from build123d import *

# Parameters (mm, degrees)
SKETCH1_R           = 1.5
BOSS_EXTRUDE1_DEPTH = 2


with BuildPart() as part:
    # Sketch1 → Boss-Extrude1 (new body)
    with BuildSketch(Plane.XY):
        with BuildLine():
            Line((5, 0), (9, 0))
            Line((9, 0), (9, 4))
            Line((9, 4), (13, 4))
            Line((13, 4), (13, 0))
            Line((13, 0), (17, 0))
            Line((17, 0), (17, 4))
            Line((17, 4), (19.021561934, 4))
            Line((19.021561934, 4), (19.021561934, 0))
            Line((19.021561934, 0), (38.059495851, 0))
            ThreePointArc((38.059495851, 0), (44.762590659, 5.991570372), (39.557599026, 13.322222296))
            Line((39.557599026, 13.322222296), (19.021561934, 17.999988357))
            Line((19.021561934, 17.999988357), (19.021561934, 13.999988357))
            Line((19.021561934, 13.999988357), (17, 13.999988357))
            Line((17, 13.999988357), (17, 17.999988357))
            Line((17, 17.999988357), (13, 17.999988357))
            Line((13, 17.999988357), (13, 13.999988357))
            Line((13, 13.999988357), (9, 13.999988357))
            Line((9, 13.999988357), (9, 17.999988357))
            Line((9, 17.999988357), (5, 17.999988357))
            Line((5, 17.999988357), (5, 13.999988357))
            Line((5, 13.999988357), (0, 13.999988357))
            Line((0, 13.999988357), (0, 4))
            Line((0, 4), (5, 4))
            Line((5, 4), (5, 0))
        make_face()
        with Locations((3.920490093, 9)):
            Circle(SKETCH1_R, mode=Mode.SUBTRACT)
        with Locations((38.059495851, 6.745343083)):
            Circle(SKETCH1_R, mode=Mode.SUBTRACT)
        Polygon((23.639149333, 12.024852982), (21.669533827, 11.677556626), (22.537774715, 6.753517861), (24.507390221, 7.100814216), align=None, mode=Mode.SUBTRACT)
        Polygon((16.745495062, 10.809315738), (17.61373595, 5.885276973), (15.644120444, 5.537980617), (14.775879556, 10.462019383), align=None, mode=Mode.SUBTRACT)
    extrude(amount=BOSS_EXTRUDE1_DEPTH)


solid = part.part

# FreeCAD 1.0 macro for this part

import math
import FreeCAD as App
import Part
import Sketcher
from FreeCAD import Vector
Q = App.Units.Quantity


def add_polygon(sketch, points):
    """Adds a closed chain of lines whose ends are joined by coincident constraints."""
    first, n = sketch.GeometryCount, len(points)
    for a, b in zip(points, points[1:] + points[:1]):
        sketch.addGeometry(Part.LineSegment(App.Vector(*a, 0), App.Vector(*b, 0)), False)
    for i in range(n):
        sketch.addConstraint(Sketcher.Constraint("Coincident", first + i, 2, first + (i + 1) % n, 1))

doc = App.newDocument("Part")
body = doc.addObject("PartDesign::Body", "Body")

# Sketch on XY plane
sketch1 = body.newObject("Sketcher::SketchObject", "Sketch")
sketch1.AttachmentSupport = (doc.getObject("XY_Plane"), [""])
sketch1.MapMode = "FlatFace"
sketch1.addGeometry(Part.LineSegment(Vector(5, 0, 0), Vector(9, 0, 0)), False)  # 0
sketch1.addGeometry(Part.LineSegment(Vector(9, 0, 0), Vector(9, 4, 0)), False)  # 1
sketch1.addGeometry(Part.LineSegment(Vector(9, 4, 0), Vector(13, 4, 0)), False)  # 2
sketch1.addGeometry(Part.LineSegment(Vector(13, 4, 0), Vector(13, 0, 0)), False)  # 3
sketch1.addGeometry(Part.LineSegment(Vector(13, 0, 0), Vector(17, 0, 0)), False)  # 4
sketch1.addGeometry(Part.LineSegment(Vector(17, 0, 0), Vector(17, 4, 0)), False)  # 5
sketch1.addGeometry(Part.LineSegment(Vector(17, 4, 0), Vector(19, 4, 0)), False)  # 6
sketch1.addGeometry(Part.LineSegment(Vector(19, 4, 0), Vector(19, 0, 0)), False)  # 7
sketch1.addGeometry(Part.LineSegment(Vector(19, 0, 0), Vector(38.1, 0, 0)), False)  # 8
sketch1.addGeometry(Part.ArcOfCircle(Part.Circle(Vector(38.1, 6.7, 0), Vector(0, 0, 1), 6.7), math.radians(-90), math.radians(77)), False)  # 9
sketch1.addGeometry(Part.LineSegment(Vector(39.6, 13.3, 0), Vector(19, 18, 0)), False)  # 10
sketch1.addGeometry(Part.LineSegment(Vector(19, 18, 0), Vector(19, 14, 0)), False)  # 11
sketch1.addGeometry(Part.LineSegment(Vector(19, 14, 0), Vector(17, 14, 0)), False)  # 12
sketch1.addGeometry(Part.LineSegment(Vector(17, 14, 0), Vector(17, 18, 0)), False)  # 13
sketch1.addGeometry(Part.LineSegment(Vector(17, 18, 0), Vector(13, 18, 0)), False)  # 14
sketch1.addGeometry(Part.LineSegment(Vector(13, 18, 0), Vector(13, 14, 0)), False)  # 15
sketch1.addGeometry(Part.LineSegment(Vector(13, 14, 0), Vector(9, 14, 0)), False)  # 16
sketch1.addGeometry(Part.LineSegment(Vector(9, 14, 0), Vector(9, 18, 0)), False)  # 17
sketch1.addGeometry(Part.LineSegment(Vector(9, 18, 0), Vector(5, 18, 0)), False)  # 18
sketch1.addGeometry(Part.LineSegment(Vector(5, 18, 0), Vector(5, 14, 0)), False)  # 19
sketch1.addGeometry(Part.LineSegment(Vector(5, 14, 0), Vector(0, 14, 0)), False)  # 20
sketch1.addGeometry(Part.LineSegment(Vector(0, 14, 0), Vector(0, 4, 0)), False)  # 21
sketch1.addGeometry(Part.LineSegment(Vector(0, 4, 0), Vector(5, 4, 0)), False)  # 22
sketch1.addGeometry(Part.LineSegment(Vector(5, 4, 0), Vector(5, 0, 0)), False)  # 23
add_polygon(sketch1, [(14.8, 10.5), (16.7, 10.8), (17.6, 5.9), (15.6, 5.5)])  # lines 24-27
sketch1.addGeometry(Part.Circle(Vector(38.1, 6.7, 0), Vector(0, 0, 1), 1.5), False)  # 28
sketch1.addGeometry(Part.Circle(Vector(3.9, 9, 0), Vector(0, 0, 1), 1.5), False)  # 29
add_polygon(sketch1, [(21.7, 11.7), (23.6, 12), (24.5, 7.1), (22.5, 6.8)])  # lines 30-33
sketch1.addConstraint([
    Sketcher.Constraint("Coincident", 0, 2, 1, 1),
    Sketcher.Constraint("Coincident", 1, 2, 2, 1),
    Sketcher.Constraint("Coincident", 2, 2, 3, 1),
    Sketcher.Constraint("Coincident", 3, 2, 4, 1),
    Sketcher.Constraint("Coincident", 4, 2, 5, 1),
    Sketcher.Constraint("Coincident", 5, 2, 6, 1),
    Sketcher.Constraint("Coincident", 6, 2, 7, 1),
    Sketcher.Constraint("Coincident", 7, 2, 8, 1),
    Sketcher.Constraint("Tangent", 8, 2, 9, 1),
    Sketcher.Constraint("Tangent", 9, 2, 10, 1),
    Sketcher.Constraint("Coincident", 10, 2, 11, 1),
    Sketcher.Constraint("Coincident", 11, 2, 12, 1),
    Sketcher.Constraint("Coincident", 12, 2, 13, 1),
    Sketcher.Constraint("Coincident", 13, 2, 14, 1),
    Sketcher.Constraint("Coincident", 14, 2, 15, 1),
    Sketcher.Constraint("Coincident", 15, 2, 16, 1),
    Sketcher.Constraint("Coincident", 16, 2, 17, 1),
    Sketcher.Constraint("Coincident", 17, 2, 18, 1),
    Sketcher.Constraint("Coincident", 18, 2, 19, 1),
    Sketcher.Constraint("Coincident", 19, 2, 20, 1),
    Sketcher.Constraint("Coincident", 20, 2, 21, 1),
    Sketcher.Constraint("Coincident", 21, 2, 22, 1),
    Sketcher.Constraint("Coincident", 22, 2, 23, 1),
    Sketcher.Constraint("Coincident", 23, 2, 0, 1),
    Sketcher.Constraint("Horizontal", 0),
    Sketcher.Constraint("Vertical", 1),
    Sketcher.Constraint("Horizontal", 2),
    Sketcher.Constraint("Vertical", 3),
    Sketcher.Constraint("Horizontal", 4),
    Sketcher.Constraint("Vertical", 5),
    Sketcher.Constraint("Horizontal", 6),
    Sketcher.Constraint("Vertical", 7),
    Sketcher.Constraint("Horizontal", 8),
    Sketcher.Constraint("Vertical", 11),
    Sketcher.Constraint("Horizontal", 12),
    Sketcher.Constraint("Vertical", 13),
    Sketcher.Constraint("Horizontal", 14),
    Sketcher.Constraint("Vertical", 15),
    Sketcher.Constraint("Horizontal", 16),
    Sketcher.Constraint("Vertical", 17),
    Sketcher.Constraint("Horizontal", 18),
    Sketcher.Constraint("Vertical", 19),
    Sketcher.Constraint("Horizontal", 20),
    Sketcher.Constraint("Vertical", 21),
    Sketcher.Constraint("Horizontal", 22),
    Sketcher.Constraint("Vertical", 23),
    Sketcher.Constraint("Coincident", 28, 3, 9, 3),
    Sketcher.Constraint("Equal", 28, 29),
    Sketcher.Constraint("PointOnObject", 0, 2, -1),
    Sketcher.Constraint("PointOnObject", 3, 2, -1),
    Sketcher.Constraint("PointOnObject", 7, 2, -1),
    Sketcher.Constraint("PointOnObject", 20, 2, -2),
    Sketcher.Constraint("Perpendicular", 24, 25),
    Sketcher.Constraint("Perpendicular", 25, 26),
    Sketcher.Constraint("Perpendicular", 26, 27),
    Sketcher.Constraint("Perpendicular", 27, 30),
    Sketcher.Constraint("Perpendicular", 30, 31),
    Sketcher.Constraint("Perpendicular", 31, 32),
    Sketcher.Constraint("Perpendicular", 32, 33),
    Sketcher.Constraint("Horizontal", 2, 2, 5, 2),
    Sketcher.Constraint("Horizontal", 10, 2, 13, 2),
    Sketcher.Constraint("Horizontal", 12, 2, 15, 2),
    Sketcher.Constraint("Horizontal", 14, 2, 17, 2),
    Sketcher.Constraint("Horizontal", 16, 2, 19, 2),
    Sketcher.Constraint("Horizontal", 6, 2, 21, 2),
    Sketcher.Constraint("Vertical", 7, 2, 10, 2),
    Sketcher.Constraint("Vertical", 5, 2, 12, 2),
    Sketcher.Constraint("Vertical", 3, 2, 14, 2),
    Sketcher.Constraint("Vertical", 1, 2, 16, 2),
    Sketcher.Constraint("Vertical", 19, 2, 22, 2),
    Sketcher.Constraint("Equal", 0, 2),
    Sketcher.Constraint("Equal", 2, 4),
    Sketcher.Constraint("Equal", 18, 1),
    Sketcher.Constraint("Equal", 7, 11),
    Sketcher.Constraint("Equal", 26, 30),
    Sketcher.Constraint("Equal", 27, 31),
    Sketcher.Constraint("Diameter", 28, Q("3 mm")),
    Sketcher.Constraint("DistanceX", 0, 1, 0, 2, Q("4 mm")),
    Sketcher.Constraint("DistanceX", 20, 2, 20, 1, Q("5 mm")),
    Sketcher.Constraint("Angle", 24, Q("10 deg")),
    Sketcher.Constraint("Distance", 24, Q("2 mm")),
    Sketcher.Constraint("Distance", 25, Q("5 mm")),
    Sketcher.Constraint("DistanceY", -1, 1, 29, 3, Q("9 mm")),
    Sketcher.Constraint("Radius", 9, Q("6.745343 mm")),
    Sketcher.Constraint("DistanceX", 6, 1, 6, 2, Q("2.021562 mm")),
    Sketcher.Constraint("DistanceY", 21, 2, 21, 1, Q("9.999988 mm")),
    Sketcher.Constraint("DistanceX", -1, 1, 9, 2, Q("39.557599 mm")),
    Sketcher.Constraint("DistanceY", 31, 2, 24, 2, Q("3.708502 mm")),
    Sketcher.Constraint("DistanceX", -1, 1, 29, 3, Q("3.92049 mm")),
    Sketcher.Constraint("DistanceX", -1, 1, 26, 2, Q("15.64412 mm")),
    Sketcher.Constraint("DistanceY", -1, 1, 26, 2, Q("5.537981 mm")),
    Sketcher.Constraint("DistanceX", -1, 1, 30, 2, Q("23.639149 mm")),
])
pad1 = body.newObject("PartDesign::Pad", "Pad")
pad1.Profile = sketch1
pad1.Length = 2

doc.recompute()
